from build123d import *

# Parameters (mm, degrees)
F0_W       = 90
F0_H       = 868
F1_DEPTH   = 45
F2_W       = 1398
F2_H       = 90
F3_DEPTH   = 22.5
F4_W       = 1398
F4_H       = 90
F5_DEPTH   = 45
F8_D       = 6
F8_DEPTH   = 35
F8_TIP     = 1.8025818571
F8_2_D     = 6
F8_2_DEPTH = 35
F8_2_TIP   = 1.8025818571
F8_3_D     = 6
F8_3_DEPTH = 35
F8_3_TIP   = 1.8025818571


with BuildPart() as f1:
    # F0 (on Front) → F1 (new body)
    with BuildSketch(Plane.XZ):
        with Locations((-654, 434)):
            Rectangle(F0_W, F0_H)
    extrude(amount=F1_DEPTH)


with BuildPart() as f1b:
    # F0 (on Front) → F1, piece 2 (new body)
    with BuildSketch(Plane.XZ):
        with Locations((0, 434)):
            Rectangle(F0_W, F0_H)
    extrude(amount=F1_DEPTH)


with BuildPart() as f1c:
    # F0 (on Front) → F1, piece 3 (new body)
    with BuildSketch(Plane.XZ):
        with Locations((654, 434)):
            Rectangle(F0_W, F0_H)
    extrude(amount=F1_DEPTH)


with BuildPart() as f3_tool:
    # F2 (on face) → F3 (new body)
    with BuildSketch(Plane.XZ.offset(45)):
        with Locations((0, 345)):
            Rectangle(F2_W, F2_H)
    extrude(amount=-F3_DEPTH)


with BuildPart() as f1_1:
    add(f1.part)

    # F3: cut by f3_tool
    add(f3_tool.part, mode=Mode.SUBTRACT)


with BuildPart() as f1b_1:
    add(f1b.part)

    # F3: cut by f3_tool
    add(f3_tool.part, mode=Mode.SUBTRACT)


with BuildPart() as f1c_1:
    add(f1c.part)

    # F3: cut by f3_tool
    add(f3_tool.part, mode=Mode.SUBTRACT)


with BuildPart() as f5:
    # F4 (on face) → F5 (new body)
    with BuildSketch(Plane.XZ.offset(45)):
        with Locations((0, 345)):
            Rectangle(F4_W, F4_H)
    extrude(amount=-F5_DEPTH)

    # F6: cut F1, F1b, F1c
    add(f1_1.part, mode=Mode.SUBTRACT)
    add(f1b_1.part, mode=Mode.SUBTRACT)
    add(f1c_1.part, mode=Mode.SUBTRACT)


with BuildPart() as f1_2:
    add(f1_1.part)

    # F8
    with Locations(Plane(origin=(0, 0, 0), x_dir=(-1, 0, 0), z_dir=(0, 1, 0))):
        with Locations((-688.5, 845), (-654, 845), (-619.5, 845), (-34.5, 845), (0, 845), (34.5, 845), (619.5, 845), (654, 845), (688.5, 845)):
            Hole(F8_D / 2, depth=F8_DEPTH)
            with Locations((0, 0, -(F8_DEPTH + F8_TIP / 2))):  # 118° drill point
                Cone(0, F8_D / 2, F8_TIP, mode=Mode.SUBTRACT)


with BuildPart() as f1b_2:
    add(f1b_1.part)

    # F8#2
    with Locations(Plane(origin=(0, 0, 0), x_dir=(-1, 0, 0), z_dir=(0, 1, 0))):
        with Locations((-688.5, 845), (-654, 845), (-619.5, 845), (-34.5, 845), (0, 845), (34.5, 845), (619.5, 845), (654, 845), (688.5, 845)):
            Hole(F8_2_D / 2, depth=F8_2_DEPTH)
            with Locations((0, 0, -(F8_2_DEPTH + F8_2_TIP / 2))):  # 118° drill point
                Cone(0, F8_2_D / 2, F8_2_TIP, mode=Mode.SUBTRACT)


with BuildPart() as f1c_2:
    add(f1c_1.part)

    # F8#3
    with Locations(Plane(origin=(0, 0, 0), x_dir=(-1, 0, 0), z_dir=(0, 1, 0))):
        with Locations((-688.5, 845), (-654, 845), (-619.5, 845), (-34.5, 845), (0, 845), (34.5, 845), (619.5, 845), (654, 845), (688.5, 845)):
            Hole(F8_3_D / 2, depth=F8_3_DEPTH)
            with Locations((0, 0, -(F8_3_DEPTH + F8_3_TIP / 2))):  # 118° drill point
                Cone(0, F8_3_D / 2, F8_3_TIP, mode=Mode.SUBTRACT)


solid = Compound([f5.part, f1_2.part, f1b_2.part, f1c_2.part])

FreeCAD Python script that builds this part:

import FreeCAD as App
import Part
import Sketcher
Q = App.Units.Quantity


def add_polygon(sketch, points):
    """Adds a closed chain of lines whose ends are joined by coincident constraints."""
    first, n = sketch.GeometryCount, len(points)
    for a, b in zip(points, points[1:] + points[:1]):
        sketch.addGeometry(Part.LineSegment(App.Vector(*a, 0), App.Vector(*b, 0)), False)
    for i in range(n):
        sketch.addConstraint(Sketcher.Constraint("Coincident", first + i, 2, first + (i + 1) % n, 1))

doc = App.newDocument("Part")
body = doc.addObject("PartDesign::Body", "Body")

# Sketch on XZ plane
sketch1 = body.newObject("Sketcher::SketchObject", "Sketch")
sketch1.AttachmentSupport = (doc.getObject("XZ_Plane"), [""])
sketch1.MapMode = "FlatFace"
add_polygon(sketch1, [(-699, 868), (-699, 0), (-609, 0), (-609, 868)])  # lines 0-3
sketch1.addConstraint(Sketcher.Constraint("Vertical", 0))
sketch1.addConstraint(Sketcher.Constraint("Horizontal", 1))
sketch1.addConstraint(Sketcher.Constraint("Vertical", 2))
sketch1.addConstraint(Sketcher.Constraint("Horizontal", 3))
sketch1.addConstraint(Sketcher.Constraint("PointOnObject", 0, 2, -1))
sketch1.addConstraint(Sketcher.Constraint("DistanceX", 1, 1, 1, 2, Q("90 mm")))
sketch1.addConstraint(Sketcher.Constraint("DistanceY", 0, 2, 0, 1, Q("868 mm")))
sketch1.addConstraint(Sketcher.Constraint("DistanceX", 0, 2, -1, 1, Q("699 mm")))
pad1 = body.newObject("PartDesign::Pad", "Pad")
pad1.Profile = sketch1
pad1.Length = 45
body2 = doc.addObject("PartDesign::Body", "Body001")

# Sketch on XZ plane
sketch2 = body2.newObject("Sketcher::SketchObject", "Sketch001")
sketch2.AttachmentSupport = (doc.getObject("XZ_Plane001"), [""])
sketch2.MapMode = "FlatFace"
add_polygon(sketch2, [(-45, 868), (-45, 0), (45, 0), (45, 868)])  # lines 0-3
sketch2.addConstraint(Sketcher.Constraint("Vertical", 0))
sketch2.addConstraint(Sketcher.Constraint("Horizontal", 1))
sketch2.addConstraint(Sketcher.Constraint("Vertical", 2))
sketch2.addConstraint(Sketcher.Constraint("Horizontal", 3))
sketch2.addConstraint(Sketcher.Constraint("Symmetric", 0, 2, 1, 2, -1, 1))
sketch2.addConstraint(Sketcher.Constraint("DistanceX", 1, 1, 1, 2, Q("90 mm")))
sketch2.addConstraint(Sketcher.Constraint("DistanceY", 0, 2, 0, 1, Q("868 mm")))
pad2 = body2.newObject("PartDesign::Pad", "Pad001")
pad2.Profile = sketch2
pad2.Length = 45
body3 = doc.addObject("PartDesign::Body", "Body002")

# Sketch on XZ plane
sketch3 = body3.newObject("Sketcher::SketchObject", "Sketch002")
sketch3.AttachmentSupport = (doc.getObject("XZ_Plane002"), [""])
sketch3.MapMode = "FlatFace"
add_polygon(sketch3, [(609, 868), (609, 0), (699, 0), (699, 868)])  # lines 0-3
sketch3.addConstraint(Sketcher.Constraint("Vertical", 0))
sketch3.addConstraint(Sketcher.Constraint("Horizontal", 1))
sketch3.addConstraint(Sketcher.Constraint("Vertical", 2))
sketch3.addConstraint(Sketcher.Constraint("Horizontal", 3))
sketch3.addConstraint(Sketcher.Constraint("PointOnObject", 0, 2, -1))
sketch3.addConstraint(Sketcher.Constraint("DistanceX", 1, 1, 1, 2, Q("90 mm")))
sketch3.addConstraint(Sketcher.Constraint("DistanceY", 0, 2, 0, 1, Q("868 mm")))
sketch3.addConstraint(Sketcher.Constraint("DistanceX", -1, 1, 0, 2, Q("609 mm")))
pad3 = body3.newObject("PartDesign::Pad", "Pad002")
pad3.Profile = sketch3
pad3.Length = 45
body4 = doc.addObject("PartDesign::Body", "Body003")

# Sketch on XZ plane
sketch4 = body4.newObject("Sketcher::SketchObject", "Sketch003")
sketch4.AttachmentSupport = (doc.getObject("XZ_Plane003"), [""])
sketch4.MapMode = "FlatFace"
sketch4.AttachmentOffset = App.Placement(App.Vector(0, 0, 45), App.Rotation())
add_polygon(sketch4, [(-699, 390), (-699, 300), (699, 300), (699, 390)])  # lines 0-3
sketch4.addConstraint(Sketcher.Constraint("Vertical", 0))
sketch4.addConstraint(Sketcher.Constraint("Horizontal", 1))
sketch4.addConstraint(Sketcher.Constraint("Vertical", 2))
sketch4.addConstraint(Sketcher.Constraint("Horizontal", 3))
sketch4.addConstraint(Sketcher.Constraint("DistanceX", 1, 1, 1, 2, Q("1398 mm")))
sketch4.addConstraint(Sketcher.Constraint("DistanceY", 0, 2, 0, 1, Q("90 mm")))
sketch4.addConstraint(Sketcher.Constraint("DistanceX", 0, 2, -1, 1, Q("699 mm")))
sketch4.addConstraint(Sketcher.Constraint("DistanceY", -1, 1, 0, 2, Q("300 mm")))
pad4 = body4.newObject("PartDesign::Pad", "Pad003")
pad4.Profile = sketch4
pad4.Length = 22.5
pad4.Reversed = True
doc.recompute()

body5 = doc.addObject("PartDesign::Body", "Body004")
body5.BaseFeature = body4
boolean = body.newObject("PartDesign::Boolean", "Boolean")
boolean.Type = "Cut"
boolean.addObjects([body5])
doc.recompute()

body6 = doc.addObject("PartDesign::Body", "Body005")
body6.BaseFeature = body4
boolean2 = body2.newObject("PartDesign::Boolean", "Boolean001")
boolean2.Type = "Cut"
boolean2.addObjects([body6])
doc.recompute()

boolean3 = body3.newObject("PartDesign::Boolean", "Boolean002")
boolean3.Type = "Cut"
boolean3.addObjects([body4])
body7 = doc.addObject("PartDesign::Body", "Body006")

# Sketch on XZ plane
sketch5 = body7.newObject("Sketcher::SketchObject", "Sketch004")
sketch5.AttachmentSupport = (doc.getObject("XZ_Plane006"), [""])
sketch5.MapMode = "FlatFace"
sketch5.AttachmentOffset = App.Placement(App.Vector(0, 0, 45), App.Rotation())
add_polygon(sketch5, [(-699, 390), (-699, 300), (699, 300), (699, 390)])  # lines 0-3
sketch5.addConstraint(Sketcher.Constraint("Vertical", 0))
sketch5.addConstraint(Sketcher.Constraint("Horizontal", 1))
sketch5.addConstraint(Sketcher.Constraint("Vertical", 2))
sketch5.addConstraint(Sketcher.Constraint("Horizontal", 3))
sketch5.addConstraint(Sketcher.Constraint("DistanceX", 1, 1, 1, 2, Q("1398 mm")))
sketch5.addConstraint(Sketcher.Constraint("DistanceY", 0, 2, 0, 1, Q("90 mm")))
sketch5.addConstraint(Sketcher.Constraint("DistanceX", 0, 2, -1, 1, Q("699 mm")))
sketch5.addConstraint(Sketcher.Constraint("DistanceY", -1, 1, 0, 2, Q("300 mm")))
pad5 = body7.newObject("PartDesign::Pad", "Pad004")
pad5.Profile = sketch5
pad5.Length = 45
pad5.Reversed = True
doc.recompute()

body8 = doc.addObject("PartDesign::Body", "Body007")
body8.BaseFeature = body
boolean4 = body7.newObject("PartDesign::Boolean", "Boolean003")
boolean4.Type = "Cut"
boolean4.addObjects([body8])
doc.recompute()

body9 = doc.addObject("PartDesign::Body", "Body008")
body9.BaseFeature = body2
boolean5 = body7.newObject("PartDesign::Boolean", "Boolean004")
boolean5.Type = "Cut"
boolean5.addObjects([body9])
doc.recompute()

body10 = doc.addObject("PartDesign::Body", "Body009")
body10.BaseFeature = body3
boolean6 = body7.newObject("PartDesign::Boolean", "Boolean005")
boolean6.Type = "Cut"
boolean6.addObjects([body10])
doc.recompute()

# Sketch on XZ plane
sketch6 = body.newObject("Sketcher::SketchObject", "Sketch005")
sketch6.AttachmentSupport = (doc.getObject("XZ_Plane"), [""])
sketch6.MapMode = "FlatFace"
sketch6.addGeometry(Part.Circle(App.Vector(688.5, 845, 0), App.Vector(0, 0, 1), 3), False)
sketch6.addGeometry(Part.Circle(App.Vector(654, 845, 0), App.Vector(0, 0, 1), 3), False)
sketch6.addGeometry(Part.Circle(App.Vector(619.5, 845, 0), App.Vector(0, 0, 1), 3), False)
sketch6.addGeometry(Part.Circle(App.Vector(34.5, 845, 0), App.Vector(0, 0, 1), 3), False)
sketch6.addGeometry(Part.Circle(App.Vector(0, 845, 0), App.Vector(0, 0, 1), 3), False)
sketch6.addGeometry(Part.Circle(App.Vector(-34.5, 845, 0), App.Vector(0, 0, 1), 3), False)
sketch6.addGeometry(Part.Circle(App.Vector(-619.5, 845, 0), App.Vector(0, 0, 1), 3), False)
sketch6.addGeometry(Part.Circle(App.Vector(-654, 845, 0), App.Vector(0, 0, 1), 3), False)
sketch6.addGeometry(Part.Circle(App.Vector(-688.5, 845, 0), App.Vector(0, 0, 1), 3), False)
sketch6.addConstraint(Sketcher.Constraint("Equal", 0, 1))
sketch6.addConstraint(Sketcher.Constraint("Equal", 1, 2))
sketch6.addConstraint(Sketcher.Constraint("Equal", 2, 3))
sketch6.addConstraint(Sketcher.Constraint("Equal", 3, 4))
sketch6.addConstraint(Sketcher.Constraint("Equal", 4, 5))
sketch6.addConstraint(Sketcher.Constraint("Equal", 5, 6))
sketch6.addConstraint(Sketcher.Constraint("Equal", 6, 7))
sketch6.addConstraint(Sketcher.Constraint("Equal", 7, 8))
sketch6.addConstraint(Sketcher.Constraint("Symmetric", 3, 3, 5, 3, -2))
sketch6.addConstraint(Sketcher.Constraint("Symmetric", 2, 3, 6, 3, -2))
sketch6.addConstraint(Sketcher.Constraint("Symmetric", 1, 3, 7, 3, -2))
sketch6.addConstraint(Sketcher.Constraint("Symmetric", 0, 3, 8, 3, -2))
sketch6.addConstraint(Sketcher.Constraint("PointOnObject", 4, 3, -2))
sketch6.addConstraint(Sketcher.Constraint("Horizontal", 0, 3, 1, 3))
sketch6.addConstraint(Sketcher.Constraint("Horizontal", 1, 3, 2, 3))
sketch6.addConstraint(Sketcher.Constraint("Horizontal", 2, 3, 3, 3))
sketch6.addConstraint(Sketcher.Constraint("Horizontal", 3, 3, 4, 3))
sketch6.addConstraint(Sketcher.Constraint("Diameter", 0, Q("6 mm")))
sketch6.addConstraint(Sketcher.Constraint("DistanceY", -1, 1, 0, 3, Q("845 mm")))
sketch6.addConstraint(Sketcher.Constraint("DistanceX", -1, 1, 1, 3, Q("654 mm")))
sketch6.addConstraint(Sketcher.Constraint("DistanceX", 2, 3, 0, 3, Q("69 mm")))
sketch6.addConstraint(Sketcher.Constraint("DistanceX", 3, 3, 2, 3, Q("585 mm")))
sketch6.addConstraint(Sketcher.Constraint("DistanceX", 5, 3, 3, 3, Q("69 mm")))
doc.recompute()
hole = body.newObject("PartDesign::Hole", "Hole")
hole.Profile = sketch6
hole.ThreadType = "None"
hole.Diameter = 6
hole.DepthType = "Dimension"
hole.Depth = 35
hole.DrillPoint = "Angled"
hole.DrillPointAngle = 118
hole.Reversed = True

# Sketch on XZ plane
sketch7 = body2.newObject("Sketcher::SketchObject", "Sketch006")
sketch7.AttachmentSupport = (doc.getObject("XZ_Plane001"), [""])
sketch7.MapMode = "FlatFace"
sketch7.addGeometry(Part.Circle(App.Vector(688.5, 845, 0), App.Vector(0, 0, 1), 3), False)
sketch7.addGeometry(Part.Circle(App.Vector(654, 845, 0), App.Vector(0, 0, 1), 3), False)
sketch7.addGeometry(Part.Circle(App.Vector(619.5, 845, 0), App.Vector(0, 0, 1), 3), False)
sketch7.addGeometry(Part.Circle(App.Vector(34.5, 845, 0), App.Vector(0, 0, 1), 3), False)
sketch7.addGeometry(Part.Circle(App.Vector(0, 845, 0), App.Vector(0, 0, 1), 3), False)
sketch7.addGeometry(Part.Circle(App.Vector(-34.5, 845, 0), App.Vector(0, 0, 1), 3), False)
sketch7.addGeometry(Part.Circle(App.Vector(-619.5, 845, 0), App.Vector(0, 0, 1), 3), False)
sketch7.addGeometry(Part.Circle(App.Vector(-654, 845, 0), App.Vector(0, 0, 1), 3), False)
sketch7.addGeometry(Part.Circle(App.Vector(-688.5, 845, 0), App.Vector(0, 0, 1), 3), False)
sketch7.addConstraint(Sketcher.Constraint("Equal", 0, 1))
sketch7.addConstraint(Sketcher.Constraint("Equal", 1, 2))
sketch7.addConstraint(Sketcher.Constraint("Equal", 2, 3))
sketch7.addConstraint(Sketcher.Constraint("Equal", 3, 4))
sketch7.addConstraint(Sketcher.Constraint("Equal", 4, 5))
sketch7.addConstraint(Sketcher.Constraint("Equal", 5, 6))
sketch7.addConstraint(Sketcher.Constraint("Equal", 6, 7))
sketch7.addConstraint(Sketcher.Constraint("Equal", 7, 8))
sketch7.addConstraint(Sketcher.Constraint("Symmetric", 3, 3, 5, 3, -2))
sketch7.addConstraint(Sketcher.Constraint("Symmetric", 2, 3, 6, 3, -2))
sketch7.addConstraint(Sketcher.Constraint("Symmetric", 1, 3, 7, 3, -2))
sketch7.addConstraint(Sketcher.Constraint("Symmetric", 0, 3, 8, 3, -2))
sketch7.addConstraint(Sketcher.Constraint("PointOnObject", 4, 3, -2))
sketch7.addConstraint(Sketcher.Constraint("Horizontal", 0, 3, 1, 3))
sketch7.addConstraint(Sketcher.Constraint("Horizontal", 1, 3, 2, 3))
sketch7.addConstraint(Sketcher.Constraint("Horizontal", 2, 3, 3, 3))
sketch7.addConstraint(Sketcher.Constraint("Horizontal", 3, 3, 4, 3))
sketch7.addConstraint(Sketcher.Constraint("Diameter", 0, Q("6 mm")))
sketch7.addConstraint(Sketcher.Constraint("DistanceY", -1, 1, 0, 3, Q("845 mm")))
sketch7.addConstraint(Sketcher.Constraint("DistanceX", -1, 1, 1, 3, Q("654 mm")))
sketch7.addConstraint(Sketcher.Constraint("DistanceX", 2, 3, 0, 3, Q("69 mm")))
sketch7.addConstraint(Sketcher.Constraint("DistanceX", 3, 3, 2, 3, Q("585 mm")))
sketch7.addConstraint(Sketcher.Constraint("DistanceX", 5, 3, 3, 3, Q("69 mm")))
doc.recompute()
hole2 = body2.newObject("PartDesign::Hole", "Hole001")
hole2.Profile = sketch7
hole2.ThreadType = "None"
hole2.Diameter = 6
hole2.DepthType = "Dimension"
hole2.Depth = 35
hole2.DrillPoint = "Angled"
hole2.DrillPointAngle = 118
hole2.Reversed = True

# Sketch on XZ plane
sketch8 = body3.newObject("Sketcher::SketchObject", "Sketch007")
sketch8.AttachmentSupport = (doc.getObject("XZ_Plane002"), [""])
sketch8.MapMode = "FlatFace"
sketch8.addGeometry(Part.Circle(App.Vector(688.5, 845, 0), App.Vector(0, 0, 1), 3), False)
sketch8.addGeometry(Part.Circle(App.Vector(654, 845, 0), App.Vector(0, 0, 1), 3), False)
sketch8.addGeometry(Part.Circle(App.Vector(619.5, 845, 0), App.Vector(0, 0, 1), 3), False)
sketch8.addGeometry(Part.Circle(App.Vector(34.5, 845, 0), App.Vector(0, 0, 1), 3), False)
sketch8.addGeometry(Part.Circle(App.Vector(0, 845, 0), App.Vector(0, 0, 1), 3), False)
sketch8.addGeometry(Part.Circle(App.Vector(-34.5, 845, 0), App.Vector(0, 0, 1), 3), False)
sketch8.addGeometry(Part.Circle(App.Vector(-619.5, 845, 0), App.Vector(0, 0, 1), 3), False)
sketch8.addGeometry(Part.Circle(App.Vector(-654, 845, 0), App.Vector(0, 0, 1), 3), False)
sketch8.addGeometry(Part.Circle(App.Vector(-688.5, 845, 0), App.Vector(0, 0, 1), 3), False)
sketch8.addConstraint(Sketcher.Constraint("Equal", 0, 1))
sketch8.addConstraint(Sketcher.Constraint("Equal", 1, 2))
sketch8.addConstraint(Sketcher.Constraint("Equal", 2, 3))
sketch8.addConstraint(Sketcher.Constraint("Equal", 3, 4))
sketch8.addConstraint(Sketcher.Constraint("Equal", 4, 5))
sketch8.addConstraint(Sketcher.Constraint("Equal", 5, 6))
sketch8.addConstraint(Sketcher.Constraint("Equal", 6, 7))
sketch8.addConstraint(Sketcher.Constraint("Equal", 7, 8))
sketch8.addConstraint(Sketcher.Constraint("Symmetric", 3, 3, 5, 3, -2))
sketch8.addConstraint(Sketcher.Constraint("Symmetric", 2, 3, 6, 3, -2))
sketch8.addConstraint(Sketcher.Constraint("Symmetric", 1, 3, 7, 3, -2))
sketch8.addConstraint(Sketcher.Constraint("Symmetric", 0, 3, 8, 3, -2))
sketch8.addConstraint(Sketcher.Constraint("PointOnObject", 4, 3, -2))
sketch8.addConstraint(Sketcher.Constraint("Horizontal", 0, 3, 1, 3))
sketch8.addConstraint(Sketcher.Constraint("Horizontal", 1, 3, 2, 3))
sketch8.addConstraint(Sketcher.Constraint("Horizontal", 2, 3, 3, 3))
sketch8.addConstraint(Sketcher.Constraint("Horizontal", 3, 3, 4, 3))
sketch8.addConstraint(Sketcher.Constraint("Diameter", 0, Q("6 mm")))
sketch8.addConstraint(Sketcher.Constraint("DistanceY", -1, 1, 0, 3, Q("845 mm")))
sketch8.addConstraint(Sketcher.Constraint("DistanceX", -1, 1, 1, 3, Q("654 mm")))
sketch8.addConstraint(Sketcher.Constraint("DistanceX", 2, 3, 0, 3, Q("69 mm")))
sketch8.addConstraint(Sketcher.Constraint("DistanceX", 3, 3, 2, 3, Q("585 mm")))
sketch8.addConstraint(Sketcher.Constraint("DistanceX", 5, 3, 3, 3, Q("69 mm")))
doc.recompute()
hole3 = body3.newObject("PartDesign::Hole", "Hole002")
hole3.Profile = sketch8
hole3.ThreadType = "None"
hole3.Diameter = 6
hole3.DepthType = "Dimension"
hole3.Depth = 35
hole3.DrillPoint = "Angled"
hole3.DrillPointAngle = 118
hole3.Reversed = True

doc.recompute()
